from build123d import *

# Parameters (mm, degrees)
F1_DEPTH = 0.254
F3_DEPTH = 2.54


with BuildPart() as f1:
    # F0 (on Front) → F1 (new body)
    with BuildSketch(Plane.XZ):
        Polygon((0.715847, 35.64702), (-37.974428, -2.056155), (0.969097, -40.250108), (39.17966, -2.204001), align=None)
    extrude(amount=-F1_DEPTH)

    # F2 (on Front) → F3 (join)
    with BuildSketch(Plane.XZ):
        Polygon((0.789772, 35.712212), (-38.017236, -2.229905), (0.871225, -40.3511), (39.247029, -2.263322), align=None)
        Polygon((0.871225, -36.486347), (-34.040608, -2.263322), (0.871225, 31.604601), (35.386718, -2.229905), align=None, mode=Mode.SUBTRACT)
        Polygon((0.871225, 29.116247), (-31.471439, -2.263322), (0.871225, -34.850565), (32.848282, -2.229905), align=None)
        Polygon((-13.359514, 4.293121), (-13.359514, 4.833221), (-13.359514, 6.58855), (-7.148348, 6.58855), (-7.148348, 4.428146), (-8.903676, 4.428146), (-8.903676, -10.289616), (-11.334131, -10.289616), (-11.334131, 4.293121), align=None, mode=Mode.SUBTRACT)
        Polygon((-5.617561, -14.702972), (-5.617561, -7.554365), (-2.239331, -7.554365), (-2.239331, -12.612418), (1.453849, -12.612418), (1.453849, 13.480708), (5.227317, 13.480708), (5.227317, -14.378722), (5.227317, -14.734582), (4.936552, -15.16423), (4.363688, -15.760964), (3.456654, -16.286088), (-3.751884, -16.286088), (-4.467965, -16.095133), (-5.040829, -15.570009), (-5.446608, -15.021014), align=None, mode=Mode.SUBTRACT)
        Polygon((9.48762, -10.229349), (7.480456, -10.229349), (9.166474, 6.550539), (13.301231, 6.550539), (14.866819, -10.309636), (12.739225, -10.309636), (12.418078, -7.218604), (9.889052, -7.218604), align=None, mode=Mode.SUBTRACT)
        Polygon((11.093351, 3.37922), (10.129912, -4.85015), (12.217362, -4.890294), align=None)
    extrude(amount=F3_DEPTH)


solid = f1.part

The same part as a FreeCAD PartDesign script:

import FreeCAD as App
import Part
import Sketcher
from FreeCAD import Vector
Q = App.Units.Quantity

doc = App.newDocument("Part")
body = doc.addObject("PartDesign::Body", "Body")

sketch1 = body.newObject("Sketcher::SketchObject", "Sketch")
sketch1.AttachmentSupport = (doc.getObject("XZ_Plane"), [""])
sketch1.MapMode = "FlatFace"
sketch1.addGeometry([
    Part.LineSegment(Vector(0.715847, 35.64702, 0), Vector(-37.974428, -2.056155, 0)),
    Part.LineSegment(Vector(-37.974428, -2.056155, 0), Vector(0.969097, -40.250108, 0)),
    Part.LineSegment(Vector(0.969097, -40.250108, 0), Vector(39.17966, -2.204001, 0)),
    Part.LineSegment(Vector(39.17966, -2.204001, 0), Vector(0.715847, 35.64702, 0)),
], False)
sketch1.addConstraint([
    Sketcher.Constraint("Coincident", 0, 2, 1, 1),
    Sketcher.Constraint("Coincident", 1, 2, 2, 1),
    Sketcher.Constraint("Coincident", 2, 2, 3, 1),
    Sketcher.Constraint("Coincident", 3, 2, 0, 1),
    Sketcher.Constraint("DistanceY", 2, 2, -1, 1, Q("2.204001 mm")),
    Sketcher.Constraint("Distance", 1, Q("54.547009 mm")),
    Sketcher.Constraint("DistanceX", 0, 2, -1, 1, Q("37.974428 mm")),
    Sketcher.Constraint("DistanceX", -1, 1, 2, 2, Q("39.17966 mm")),
    Sketcher.Constraint("DistanceY", -1, 1, 3, 2, Q("35.64702 mm")),
    Sketcher.Constraint("DistanceX", 3, 2, 1, 2, Q("0.25325 mm")),
    Sketcher.Constraint("Distance", 0, Q("54.022836 mm")),
    Sketcher.Constraint("Distance", 2, Q("53.921734 mm")),
])
pad1 = body.newObject("PartDesign::Pad", "Pad")
pad1.Profile = sketch1
pad1.Length = Q("0.01 in")
pad1.Reversed = True

sketch2 = body.newObject("Sketcher::SketchObject", "Sketch001")
sketch2.AttachmentSupport = (doc.getObject("XZ_Plane"), [""])
sketch2.MapMode = "FlatFace"
sketch2.addGeometry([
    Part.LineSegment(Vector(0.789772, 35.712212, 0), Vector(-38.017236, -2.229905, 0)),
    Part.LineSegment(Vector(-38.017236, -2.229905, 0), Vector(0.871225, -40.3511, 0)),
    Part.LineSegment(Vector(0.871225, -40.3511, 0), Vector(39.247029, -2.263322, 0)),
    Part.LineSegment(Vector(39.247029, -2.263322, 0), Vector(0.789772, 35.712212, 0)),
    Part.LineSegment(Vector(35.386718, -2.229905, 0), Vector(0.871225, -36.486347, 0)),
    Part.LineSegment(Vector(0.871225, -36.486347, 0), Vector(-34.040608, -2.263322, 0)),
    Part.LineSegment(Vector(-34.040608, -2.263322, 0), Vector(0.871225, 31.604601, 0)),
    Part.LineSegment(Vector(0.871225, 31.604601, 0), Vector(35.386718, -2.229905, 0)),
    Part.LineSegment(Vector(0.871225, 29.116247, 0), Vector(-31.471439, -2.263322, 0)),
    Part.LineSegment(Vector(-31.471439, -2.263322, 0), Vector(0.871225, -34.850565, 0)),
    Part.LineSegment(Vector(0.871225, -34.850565, 0), Vector(32.848282, -2.229905, 0)),
    Part.LineSegment(Vector(32.848282, -2.229905, 0), Vector(0.871225, 29.116247, 0)),
    Part.LineSegment(Vector(-11.334131, 4.293121, 0), Vector(-13.359514, 4.293121, 0)),
    Part.LineSegment(Vector(-13.359514, 4.293121, 0), Vector(-13.359514, 6.58855, 0)),
    Part.LineSegment(Vector(-13.359514, 6.58855, 0), Vector(-7.148348, 6.58855, 0)),
    Part.LineSegment(Vector(-7.148348, 6.58855, 0), Vector(-7.148348, 4.428146, 0)),
    Part.LineSegment(Vector(-7.148348, 4.428146, 0), Vector(-8.903676, 4.428146, 0)),
    Part.LineSegment(Vector(-8.903676, 4.428146, 0), Vector(-8.903676, -10.289616, 0)),
    Part.LineSegment(Vector(-8.903676, -10.289616, 0), Vector(-11.334131, -10.289616, 0)),
    Part.LineSegment(Vector(-11.334131, -10.289616, 0), Vector(-11.334131, 4.293121, 0)),
    Part.LineSegment(Vector(9.889052, -7.218604, 0), Vector(9.48762, -10.229349, 0)),
    Part.LineSegment(Vector(9.48762, -10.229349, 0), Vector(7.480456, -10.229349, 0)),
    Part.LineSegment(Vector(7.480456, -10.229349, 0), Vector(9.166474, 6.550539, 0)),
    Part.LineSegment(Vector(9.166474, 6.550539, 0), Vector(13.301231, 6.550539, 0)),
    Part.LineSegment(Vector(13.301231, 6.550539, 0), Vector(14.866819, -10.309636, 0)),
    Part.LineSegment(Vector(14.866819, -10.309636, 0), Vector(12.739225, -10.309636, 0)),
    Part.LineSegment(Vector(12.739225, -10.309636, 0), Vector(12.418078, -7.218604, 0)),
    Part.LineSegment(Vector(12.418078, -7.218604, 0), Vector(9.889052, -7.218604, 0)),
    Part.LineSegment(Vector(-5.446608, -15.021014, 0), Vector(-5.617561, -14.702972, 0)),
    Part.LineSegment(Vector(-5.617561, -14.702972, 0), Vector(-5.617561, -7.554365, 0)),
    Part.LineSegment(Vector(-5.617561, -7.554365, 0), Vector(-2.239331, -7.554365, 0)),
    Part.LineSegment(Vector(-2.239331, -7.554365, 0), Vector(-2.239331, -12.612418, 0)),
    Part.LineSegment(Vector(-2.239331, -12.612418, 0), Vector(1.453849, -12.612418, 0)),
    Part.LineSegment(Vector(1.453849, -12.612418, 0), Vector(1.453849, 13.480708, 0)),
    Part.LineSegment(Vector(1.453849, 13.480708, 0), Vector(5.227317, 13.480708, 0)),
    Part.LineSegment(Vector(5.227317, 13.480708, 0), Vector(5.227317, -14.734582, 0)),
    Part.LineSegment(Vector(5.227317, -14.734582, 0), Vector(4.936552, -15.16423, 0)),
    Part.LineSegment(Vector(4.936552, -15.16423, 0), Vector(4.363688, -15.760964, 0)),
    Part.LineSegment(Vector(4.363688, -15.760964, 0), Vector(3.456654, -16.286088, 0)),
    Part.LineSegment(Vector(3.456654, -16.286088, 0), Vector(-3.751884, -16.286088, 0)),
    Part.LineSegment(Vector(-3.751884, -16.286088, 0), Vector(-4.467965, -16.095133, 0)),
    Part.LineSegment(Vector(-4.467965, -16.095133, 0), Vector(-5.040829, -15.570009, 0)),
    Part.LineSegment(Vector(-5.040829, -15.570009, 0), Vector(-5.446608, -15.021014, 0)),
    Part.LineSegment(Vector(11.093351, 3.37922, 0), Vector(10.129912, -4.85015, 0)),
    Part.LineSegment(Vector(10.129912, -4.85015, 0), Vector(12.217362, -4.890294, 0)),
    Part.LineSegment(Vector(12.217362, -4.890294, 0), Vector(11.093351, 3.37922, 0)),
], False)
sketch2.addConstraint([
    Sketcher.Constraint("Coincident", 0, 2, 1, 1),
    Sketcher.Constraint("Coincident", 1, 2, 2, 1),
    Sketcher.Constraint("Coincident", 2, 2, 3, 1),
    Sketcher.Constraint("Coincident", 3, 2, 0, 1),
    Sketcher.Constraint("Coincident", 4, 2, 5, 1),
    Sketcher.Constraint("Coincident", 5, 2, 6, 1),
    Sketcher.Constraint("Coincident", 6, 2, 7, 1),
    Sketcher.Constraint("Coincident", 7, 2, 4, 1),
    Sketcher.Constraint("Coincident", 8, 2, 9, 1),
    Sketcher.Constraint("Coincident", 9, 2, 10, 1),
    Sketcher.Constraint("Coincident", 10, 2, 11, 1),
    Sketcher.Constraint("Coincident", 11, 2, 8, 1),
    Sketcher.Constraint("Coincident", 12, 2, 13, 1),
    Sketcher.Constraint("Coincident", 13, 2, 14, 1),
    Sketcher.Constraint("Coincident", 14, 2, 15, 1),
    Sketcher.Constraint("Coincident", 15, 2, 16, 1),
    Sketcher.Constraint("Coincident", 16, 2, 17, 1),
    Sketcher.Constraint("Coincident", 17, 2, 18, 1),
    Sketcher.Constraint("Coincident", 18, 2, 19, 1),
    Sketcher.Constraint("Coincident", 19, 2, 12, 1),
    Sketcher.Constraint("Coincident", 20, 2, 21, 1),
    Sketcher.Constraint("Coincident", 21, 2, 22, 1),
    Sketcher.Constraint("Coincident", 22, 2, 23, 1),
    Sketcher.Constraint("Coincident", 23, 2, 24, 1),
    Sketcher.Constraint("Coincident", 24, 2, 25, 1),
    Sketcher.Constraint("Coincident", 25, 2, 26, 1),
    Sketcher.Constraint("Coincident", 26, 2, 27, 1),
    Sketcher.Constraint("Coincident", 27, 2, 20, 1),
    Sketcher.Constraint("Coincident", 28, 2, 29, 1),
    Sketcher.Constraint("Coincident", 29, 2, 30, 1),
    Sketcher.Constraint("Coincident", 30, 2, 31, 1),
    Sketcher.Constraint("Coincident", 31, 2, 32, 1),
    Sketcher.Constraint("Coincident", 32, 2, 33, 1),
    Sketcher.Constraint("Coincident", 33, 2, 34, 1),
    Sketcher.Constraint("Coincident", 34, 2, 35, 1),
    Sketcher.Constraint("Coincident", 35, 2, 36, 1),
    Sketcher.Constraint("Coincident", 36, 2, 37, 1),
    Sketcher.Constraint("Coincident", 37, 2, 38, 1),
    Sketcher.Constraint("Coincident", 38, 2, 39, 1),
    Sketcher.Constraint("Coincident", 39, 2, 40, 1),
    Sketcher.Constraint("Coincident", 40, 2, 41, 1),
    Sketcher.Constraint("Coincident", 41, 2, 42, 1),
    Sketcher.Constraint("Coincident", 42, 2, 28, 1),
    Sketcher.Constraint("Coincident", 43, 2, 44, 1),
    Sketcher.Constraint("Coincident", 44, 2, 45, 1),
    Sketcher.Constraint("Coincident", 45, 2, 43, 1),
    Sketcher.Constraint("Horizontal", 12),
    Sketcher.Constraint("Vertical", 13),
    Sketcher.Constraint("Horizontal", 14),
    Sketcher.Constraint("Vertical", 15),
    Sketcher.Constraint("Horizontal", 16),
    Sketcher.Constraint("Vertical", 17),
    Sketcher.Constraint("Horizontal", 18),
    Sketcher.Constraint("Vertical", 19),
    Sketcher.Constraint("Horizontal", 21),
    Sketcher.Constraint("Horizontal", 23),
    Sketcher.Constraint("Horizontal", 25),
    Sketcher.Constraint("Horizontal", 27),
    Sketcher.Constraint("Vertical", 29),
    Sketcher.Constraint("Horizontal", 30),
    Sketcher.Constraint("Vertical", 31),
    Sketcher.Constraint("Horizontal", 32),
    Sketcher.Constraint("Vertical", 33),
    Sketcher.Constraint("Horizontal", 34),
    Sketcher.Constraint("Vertical", 35),
    Sketcher.Constraint("Horizontal", 39),
    Sketcher.Constraint("DistanceX", -1, 1, 1, 2, Q("0.0343002 in")),
    Sketcher.Constraint("DistanceX", -1, 1, 4, 2, Q("0.0343002 in")),
    Sketcher.Constraint("DistanceX", -1, 1, 6, 2, Q("0.0343002 in")),
    Sketcher.Constraint("DistanceX", -1, 1, 9, 2, Q("0.0343002 in")),
    Sketcher.Constraint("DistanceX", -1, 1, 11, 2, Q("0.0343002 in")),
    Sketcher.Constraint("DistanceX", -1, 1, 34, 2, Q("0.2057999 in")),
    Sketcher.Constraint("DistanceX", 0, 2, 2, 2, Q("3.0419002 in")),
    Sketcher.Constraint("DistanceY", 15, 2, 33, 2, Q("0.3564001 in")),
    Sketcher.Constraint("Distance", 2, Q("54.068301 mm")),
    Sketcher.Constraint("DistanceX", 16, 2, 16, 1, Q("1.755328 mm")),
    Sketcher.Constraint("DistanceX", 30, 1, 30, 2, Q("3.37823 mm")),
    Sketcher.Constraint("DistanceX", 32, 1, 32, 2, Q("3.69318 mm")),
    Sketcher.Constraint("DistanceX", 34, 1, 34, 2, Q("3.773468 mm")),
    Sketcher.Constraint("DistanceY", 13, 1, 13, 2, Q("2.295429 mm")),
    Sketcher.Constraint("DistanceY", 35, 2, 35, 1, Q("28.21529 mm")),
    Sketcher.Constraint("DistanceY", 1, 2, -1, 1, Q("40.3511 mm")),
    Sketcher.Constraint("DistanceY", -1, 1, 6, 2, Q("31.604601 mm")),
    Sketcher.Constraint("DistanceY", 15, 2, 11, 2, Q("24.688101 mm")),
    Sketcher.Constraint("DistanceY", 20, 2, 14, 2, Q("16.817899 mm")),
    Sketcher.Constraint("DistanceX", 20, 2, 24, 2, Q("5.379199 mm")),
    Sketcher.Constraint("DistanceX", 18, 2, 30, 2, Q("9.0948 mm")),
    Sketcher.Constraint("DistanceY", 31, 2, 17, 2, Q("2.322802 mm")),
    Sketcher.Constraint("DistanceY", 20, 2, 43, 2, Q("5.379199 mm")),
    Sketcher.Constraint("DistanceX", 27, 2, 45, 2, Q("1.204299 mm")),
    Sketcher.Constraint("Distance", 3, Q("54.047218 mm")),
    Sketcher.Constraint("Distance", 8, Q("45.063569 mm")),
    Sketcher.Constraint("Distance", 10, Q("45.679751 mm")),
    Sketcher.Constraint("Distance", 20, Q("3.037389 mm")),
    Sketcher.Constraint("Distance", 22, Q("16.86438 mm")),
    Sketcher.Constraint("Distance", 26, Q("3.10767 mm")),
    Sketcher.Constraint("Distance", 36, Q("0.518789 mm")),
    Sketcher.Constraint("Distance", 41, Q("0.777128 mm")),
    Sketcher.Constraint("Distance", 42, Q("0.68268 mm")),
    Sketcher.Constraint("DistanceX", 12, 2, 12, 1, Q("2.025383 mm")),
    Sketcher.Constraint("DistanceX", 14, 1, 14, 2, Q("6.211166 mm")),
    Sketcher.Constraint("DistanceX", 21, 2, 21, 1, Q("2.007164 mm")),
    Sketcher.Constraint("DistanceX", 23, 1, 23, 2, Q("4.134757 mm")),
    Sketcher.Constraint("DistanceX", 25, 2, 25, 1, Q("2.127594 mm")),
    Sketcher.Constraint("DistanceX", 27, 2, 27, 1, Q("2.529026 mm")),
    Sketcher.Constraint("DistanceX", 39, 2, 39, 1, Q("7.208538 mm")),
    Sketcher.Constraint("DistanceY", 15, 2, 15, 1, Q("2.160404 mm")),
    Sketcher.Constraint("DistanceY", 17, 2, 17, 1, Q("14.717762 mm")),
    Sketcher.Constraint("DistanceY", 29, 1, 29, 2, Q("7.148607 mm")),
    Sketcher.Constraint("DistanceY", 31, 2, 31, 1, Q("5.058053 mm")),
    Sketcher.Constraint("DistanceX", -1, 1, 2, 2, Q("39.247029 mm")),
    Sketcher.Constraint("DistanceY", 5, 2, -1, 1, Q("2.263322 mm")),
    Sketcher.Constraint("DistanceX", -1, 1, 7, 2, Q("35.386718 mm")),
    Sketcher.Constraint("DistanceX", 8, 2, -1, 1, Q("31.471439 mm")),
    Sketcher.Constraint("DistanceY", 8, 2, -1, 1, Q("2.263322 mm")),
    Sketcher.Constraint("DistanceX", -1, 1, 10, 2, Q("32.848282 mm")),
    Sketcher.Constraint("DistanceX", -1, 1, 20, 2, Q("9.48762 mm")),
    Sketcher.Constraint("DistanceY", -1, 1, 22, 2, Q("6.550539 mm")),
    Sketcher.Constraint("DistanceX", -1, 1, 36, 2, Q("4.936552 mm")),
    Sketcher.Constraint("DistanceX", 41, 2, -1, 1, Q("5.040829 mm")),
    Sketcher.Constraint("DistanceY", 41, 2, -1, 1, Q("15.570009 mm")),
    Sketcher.Constraint("DistanceX", 42, 2, -1, 1, Q("5.446608 mm")),
    Sketcher.Constraint("DistanceX", -1, 1, 43, 2, Q("10.129912 mm")),
    Sketcher.Constraint("DistanceX", -1, 1, 45, 2, Q("11.093351 mm")),
    Sketcher.Constraint("DistanceY", -1, 1, 45, 2, Q("3.37922 mm")),
    Sketcher.Constraint("DistanceY", 1, 2, 3, 2, Q("76.063312 mm")),
    Sketcher.Constraint("DistanceY", 4, 2, 3, 2, Q("72.198559 mm")),
    Sketcher.Constraint("DistanceX", 5, 2, 3, 2, Q("34.83038 mm")),
    Sketcher.Constraint("DistanceY", 4, 2, 9, 2, Q("1.635782 mm")),
    Sketcher.Constraint("DistanceY", 9, 2, 7, 2, Q("32.62066 mm")),
    Sketcher.Constraint("DistanceX", 37, 2, 35, 2, Q("0.863629 mm")),
    Sketcher.Constraint("DistanceY", 37, 2, 35, 2, Q("1.026382 mm")),
    Sketcher.Constraint("DistanceY", 38, 2, 32, 2, Q("3.67367 mm")),
    Sketcher.Constraint("DistanceX", 40, 2, 39, 2, Q("0.716081 mm")),
    Sketcher.Constraint("DistanceY", 40, 2, 28, 2, Q("1.392161 mm")),
    Sketcher.Constraint("DistanceX", 43, 2, 44, 2, Q("2.08745 mm")),
    Sketcher.Constraint("DistanceY", 26, 2, 44, 2, Q("2.32831 mm")),
    Sketcher.Constraint("Distance", 0, Q("54.273273 mm")),
])
pad2 = body.newObject("PartDesign::Pad", "Pad001")
pad2.Profile = sketch2
pad2.Length = Q("0.1 in")

doc.recompute()
